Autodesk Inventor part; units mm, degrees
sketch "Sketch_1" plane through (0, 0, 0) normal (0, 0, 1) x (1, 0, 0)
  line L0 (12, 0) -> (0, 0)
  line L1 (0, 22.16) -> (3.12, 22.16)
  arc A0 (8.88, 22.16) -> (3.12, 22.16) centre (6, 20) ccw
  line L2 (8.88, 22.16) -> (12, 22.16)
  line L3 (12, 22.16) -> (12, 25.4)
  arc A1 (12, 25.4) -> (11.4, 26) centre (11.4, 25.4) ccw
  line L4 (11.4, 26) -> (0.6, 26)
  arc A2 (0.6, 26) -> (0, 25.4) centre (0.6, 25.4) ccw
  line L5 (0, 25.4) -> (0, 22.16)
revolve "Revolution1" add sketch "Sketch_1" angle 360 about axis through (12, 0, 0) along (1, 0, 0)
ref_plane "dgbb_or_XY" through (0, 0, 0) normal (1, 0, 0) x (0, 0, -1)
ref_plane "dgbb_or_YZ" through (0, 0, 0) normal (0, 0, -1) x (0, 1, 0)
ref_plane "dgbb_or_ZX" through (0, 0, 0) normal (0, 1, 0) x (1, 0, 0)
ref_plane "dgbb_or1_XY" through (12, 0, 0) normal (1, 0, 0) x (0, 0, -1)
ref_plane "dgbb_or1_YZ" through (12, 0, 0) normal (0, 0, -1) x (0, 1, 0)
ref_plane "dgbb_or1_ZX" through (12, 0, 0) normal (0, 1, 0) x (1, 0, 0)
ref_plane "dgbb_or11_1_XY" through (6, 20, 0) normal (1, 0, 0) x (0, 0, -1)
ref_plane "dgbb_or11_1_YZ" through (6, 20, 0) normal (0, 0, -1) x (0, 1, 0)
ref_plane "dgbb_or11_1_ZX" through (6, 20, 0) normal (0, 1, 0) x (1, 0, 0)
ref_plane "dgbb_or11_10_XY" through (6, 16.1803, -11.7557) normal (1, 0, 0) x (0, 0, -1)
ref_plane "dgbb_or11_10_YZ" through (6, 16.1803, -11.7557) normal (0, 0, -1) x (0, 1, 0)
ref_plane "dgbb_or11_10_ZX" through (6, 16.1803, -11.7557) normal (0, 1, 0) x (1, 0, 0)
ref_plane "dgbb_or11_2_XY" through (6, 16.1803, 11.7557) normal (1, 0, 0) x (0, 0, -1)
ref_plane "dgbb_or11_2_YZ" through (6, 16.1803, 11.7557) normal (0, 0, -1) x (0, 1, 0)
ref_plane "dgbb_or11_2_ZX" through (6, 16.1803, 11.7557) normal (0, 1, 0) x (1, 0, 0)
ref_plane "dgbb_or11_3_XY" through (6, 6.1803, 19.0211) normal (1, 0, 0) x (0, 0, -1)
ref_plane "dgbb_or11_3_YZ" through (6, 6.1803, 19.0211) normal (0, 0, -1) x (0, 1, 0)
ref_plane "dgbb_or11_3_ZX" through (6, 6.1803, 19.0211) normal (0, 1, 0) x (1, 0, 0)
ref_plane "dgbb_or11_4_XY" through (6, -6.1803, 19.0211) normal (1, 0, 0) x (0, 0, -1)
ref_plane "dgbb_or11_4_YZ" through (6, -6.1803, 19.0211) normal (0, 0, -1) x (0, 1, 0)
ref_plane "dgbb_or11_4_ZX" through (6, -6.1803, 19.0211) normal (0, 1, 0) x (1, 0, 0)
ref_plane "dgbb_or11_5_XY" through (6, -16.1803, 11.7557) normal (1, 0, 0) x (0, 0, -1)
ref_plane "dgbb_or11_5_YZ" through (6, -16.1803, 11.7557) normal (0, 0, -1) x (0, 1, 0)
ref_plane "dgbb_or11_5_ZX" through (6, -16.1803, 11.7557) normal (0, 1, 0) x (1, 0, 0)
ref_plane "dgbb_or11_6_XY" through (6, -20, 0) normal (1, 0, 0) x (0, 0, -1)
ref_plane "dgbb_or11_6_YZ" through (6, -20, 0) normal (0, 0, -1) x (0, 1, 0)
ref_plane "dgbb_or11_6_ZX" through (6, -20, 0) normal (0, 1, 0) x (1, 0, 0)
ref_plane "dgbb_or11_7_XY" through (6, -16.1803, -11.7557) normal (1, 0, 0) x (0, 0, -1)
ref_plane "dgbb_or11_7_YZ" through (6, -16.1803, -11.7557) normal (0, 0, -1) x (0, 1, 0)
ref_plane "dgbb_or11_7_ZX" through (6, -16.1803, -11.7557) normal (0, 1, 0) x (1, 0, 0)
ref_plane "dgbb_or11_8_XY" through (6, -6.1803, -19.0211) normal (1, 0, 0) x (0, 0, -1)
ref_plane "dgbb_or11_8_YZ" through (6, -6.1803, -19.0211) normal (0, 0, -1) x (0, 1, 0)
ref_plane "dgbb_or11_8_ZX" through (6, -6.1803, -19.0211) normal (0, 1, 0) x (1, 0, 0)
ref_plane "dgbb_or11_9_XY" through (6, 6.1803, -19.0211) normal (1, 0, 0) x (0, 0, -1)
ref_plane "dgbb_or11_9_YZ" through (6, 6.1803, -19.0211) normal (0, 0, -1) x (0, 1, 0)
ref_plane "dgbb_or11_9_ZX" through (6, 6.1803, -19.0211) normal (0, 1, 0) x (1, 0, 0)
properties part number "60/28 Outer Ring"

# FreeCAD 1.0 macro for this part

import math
import FreeCAD as App
import Part
import Sketcher
Q = App.Units.Quantity

doc = App.newDocument("Part")
body = doc.addObject("PartDesign::Body", "Body")

sketch1 = doc.addObject("Sketcher::SketchObject", "Sketch")
body.addObject(sketch1)
sketch1.AttachmentSupport = (doc.XY_Plane, [""])
sketch1.MapMode = "FlatFace"
sketch1.addGeometry([
    Part.LineSegment(App.Vector(0, 25.4, 0), App.Vector(0, 22.2, 0)),
    Part.LineSegment(App.Vector(0, 22.2, 0), App.Vector(3.1, 22.2, 0)),
    Part.ArcOfCircle(Part.Circle(App.Vector(6, 20, 0), App.Vector(0, 0, 1), 3.6), math.radians(37), math.radians(143)),
    Part.LineSegment(App.Vector(8.9, 22.2, 0), App.Vector(12, 22.2, 0)),
    Part.LineSegment(App.Vector(12, 22.2, 0), App.Vector(12, 25.4, 0)),
    Part.ArcOfCircle(Part.Circle(App.Vector(11.4, 25.4, 0), App.Vector(0, 0, 1), 0.6), math.radians(0), math.radians(90)),
    Part.LineSegment(App.Vector(11.4, 26, 0), App.Vector(0.6, 26, 0)),
    Part.ArcOfCircle(Part.Circle(App.Vector(0.6, 25.4, 0), App.Vector(0, 0, 1), 0.6), math.radians(90), math.radians(180)),
], False)
sketch1.addConstraint([
    Sketcher.Constraint("Coincident", 0, 2, 1, 1),
    Sketcher.Constraint("Coincident", 1, 2, 2, 2),
    Sketcher.Constraint("Coincident", 2, 1, 3, 1),
    Sketcher.Constraint("Coincident", 3, 2, 4, 1),
    Sketcher.Constraint("Tangent", 4, 2, 5, 1),
    Sketcher.Constraint("Tangent", 5, 2, 6, 1),
    Sketcher.Constraint("Tangent", 6, 2, 7, 1),
    Sketcher.Constraint("Tangent", 7, 2, 0, 1),
    Sketcher.Constraint("Vertical", 0),
    Sketcher.Constraint("Horizontal", 1),
    Sketcher.Constraint("Horizontal", 3),
    Sketcher.Constraint("Vertical", 4),
    Sketcher.Constraint("Horizontal", 6),
    Sketcher.Constraint("Equal", 5, 7),
    Sketcher.Constraint("PointOnObject", 0, 2, -2),
    Sketcher.Constraint("Horizontal", 1, 2, 2, 1),
    Sketcher.Constraint("Equal", 1, 3),
    Sketcher.Constraint("Radius", 2, Q("3.6 mm")),
    Sketcher.Constraint("Radius", 5, Q("0.6 mm")),
    Sketcher.Constraint("DistanceX", 6, 2, 6, 1, Q("10.8 mm")),
    Sketcher.Constraint("DistanceY", -1, 1, 2, 3, Q("20 mm")),
    Sketcher.Constraint("DistanceY", -1, 1, 5, 2, Q("26 mm")),
    Sketcher.Constraint("DistanceX", 1, 1, 1, 2, Q("3.12 mm")),
])
revolution = doc.addObject("PartDesign::Revolution", "Revolution")
body.addObject(revolution)
revolution.Profile = sketch1
revolution.ReferenceAxis = (sketch1, ["H_Axis"])
revolution.Angle = 360

doc.recompute()
